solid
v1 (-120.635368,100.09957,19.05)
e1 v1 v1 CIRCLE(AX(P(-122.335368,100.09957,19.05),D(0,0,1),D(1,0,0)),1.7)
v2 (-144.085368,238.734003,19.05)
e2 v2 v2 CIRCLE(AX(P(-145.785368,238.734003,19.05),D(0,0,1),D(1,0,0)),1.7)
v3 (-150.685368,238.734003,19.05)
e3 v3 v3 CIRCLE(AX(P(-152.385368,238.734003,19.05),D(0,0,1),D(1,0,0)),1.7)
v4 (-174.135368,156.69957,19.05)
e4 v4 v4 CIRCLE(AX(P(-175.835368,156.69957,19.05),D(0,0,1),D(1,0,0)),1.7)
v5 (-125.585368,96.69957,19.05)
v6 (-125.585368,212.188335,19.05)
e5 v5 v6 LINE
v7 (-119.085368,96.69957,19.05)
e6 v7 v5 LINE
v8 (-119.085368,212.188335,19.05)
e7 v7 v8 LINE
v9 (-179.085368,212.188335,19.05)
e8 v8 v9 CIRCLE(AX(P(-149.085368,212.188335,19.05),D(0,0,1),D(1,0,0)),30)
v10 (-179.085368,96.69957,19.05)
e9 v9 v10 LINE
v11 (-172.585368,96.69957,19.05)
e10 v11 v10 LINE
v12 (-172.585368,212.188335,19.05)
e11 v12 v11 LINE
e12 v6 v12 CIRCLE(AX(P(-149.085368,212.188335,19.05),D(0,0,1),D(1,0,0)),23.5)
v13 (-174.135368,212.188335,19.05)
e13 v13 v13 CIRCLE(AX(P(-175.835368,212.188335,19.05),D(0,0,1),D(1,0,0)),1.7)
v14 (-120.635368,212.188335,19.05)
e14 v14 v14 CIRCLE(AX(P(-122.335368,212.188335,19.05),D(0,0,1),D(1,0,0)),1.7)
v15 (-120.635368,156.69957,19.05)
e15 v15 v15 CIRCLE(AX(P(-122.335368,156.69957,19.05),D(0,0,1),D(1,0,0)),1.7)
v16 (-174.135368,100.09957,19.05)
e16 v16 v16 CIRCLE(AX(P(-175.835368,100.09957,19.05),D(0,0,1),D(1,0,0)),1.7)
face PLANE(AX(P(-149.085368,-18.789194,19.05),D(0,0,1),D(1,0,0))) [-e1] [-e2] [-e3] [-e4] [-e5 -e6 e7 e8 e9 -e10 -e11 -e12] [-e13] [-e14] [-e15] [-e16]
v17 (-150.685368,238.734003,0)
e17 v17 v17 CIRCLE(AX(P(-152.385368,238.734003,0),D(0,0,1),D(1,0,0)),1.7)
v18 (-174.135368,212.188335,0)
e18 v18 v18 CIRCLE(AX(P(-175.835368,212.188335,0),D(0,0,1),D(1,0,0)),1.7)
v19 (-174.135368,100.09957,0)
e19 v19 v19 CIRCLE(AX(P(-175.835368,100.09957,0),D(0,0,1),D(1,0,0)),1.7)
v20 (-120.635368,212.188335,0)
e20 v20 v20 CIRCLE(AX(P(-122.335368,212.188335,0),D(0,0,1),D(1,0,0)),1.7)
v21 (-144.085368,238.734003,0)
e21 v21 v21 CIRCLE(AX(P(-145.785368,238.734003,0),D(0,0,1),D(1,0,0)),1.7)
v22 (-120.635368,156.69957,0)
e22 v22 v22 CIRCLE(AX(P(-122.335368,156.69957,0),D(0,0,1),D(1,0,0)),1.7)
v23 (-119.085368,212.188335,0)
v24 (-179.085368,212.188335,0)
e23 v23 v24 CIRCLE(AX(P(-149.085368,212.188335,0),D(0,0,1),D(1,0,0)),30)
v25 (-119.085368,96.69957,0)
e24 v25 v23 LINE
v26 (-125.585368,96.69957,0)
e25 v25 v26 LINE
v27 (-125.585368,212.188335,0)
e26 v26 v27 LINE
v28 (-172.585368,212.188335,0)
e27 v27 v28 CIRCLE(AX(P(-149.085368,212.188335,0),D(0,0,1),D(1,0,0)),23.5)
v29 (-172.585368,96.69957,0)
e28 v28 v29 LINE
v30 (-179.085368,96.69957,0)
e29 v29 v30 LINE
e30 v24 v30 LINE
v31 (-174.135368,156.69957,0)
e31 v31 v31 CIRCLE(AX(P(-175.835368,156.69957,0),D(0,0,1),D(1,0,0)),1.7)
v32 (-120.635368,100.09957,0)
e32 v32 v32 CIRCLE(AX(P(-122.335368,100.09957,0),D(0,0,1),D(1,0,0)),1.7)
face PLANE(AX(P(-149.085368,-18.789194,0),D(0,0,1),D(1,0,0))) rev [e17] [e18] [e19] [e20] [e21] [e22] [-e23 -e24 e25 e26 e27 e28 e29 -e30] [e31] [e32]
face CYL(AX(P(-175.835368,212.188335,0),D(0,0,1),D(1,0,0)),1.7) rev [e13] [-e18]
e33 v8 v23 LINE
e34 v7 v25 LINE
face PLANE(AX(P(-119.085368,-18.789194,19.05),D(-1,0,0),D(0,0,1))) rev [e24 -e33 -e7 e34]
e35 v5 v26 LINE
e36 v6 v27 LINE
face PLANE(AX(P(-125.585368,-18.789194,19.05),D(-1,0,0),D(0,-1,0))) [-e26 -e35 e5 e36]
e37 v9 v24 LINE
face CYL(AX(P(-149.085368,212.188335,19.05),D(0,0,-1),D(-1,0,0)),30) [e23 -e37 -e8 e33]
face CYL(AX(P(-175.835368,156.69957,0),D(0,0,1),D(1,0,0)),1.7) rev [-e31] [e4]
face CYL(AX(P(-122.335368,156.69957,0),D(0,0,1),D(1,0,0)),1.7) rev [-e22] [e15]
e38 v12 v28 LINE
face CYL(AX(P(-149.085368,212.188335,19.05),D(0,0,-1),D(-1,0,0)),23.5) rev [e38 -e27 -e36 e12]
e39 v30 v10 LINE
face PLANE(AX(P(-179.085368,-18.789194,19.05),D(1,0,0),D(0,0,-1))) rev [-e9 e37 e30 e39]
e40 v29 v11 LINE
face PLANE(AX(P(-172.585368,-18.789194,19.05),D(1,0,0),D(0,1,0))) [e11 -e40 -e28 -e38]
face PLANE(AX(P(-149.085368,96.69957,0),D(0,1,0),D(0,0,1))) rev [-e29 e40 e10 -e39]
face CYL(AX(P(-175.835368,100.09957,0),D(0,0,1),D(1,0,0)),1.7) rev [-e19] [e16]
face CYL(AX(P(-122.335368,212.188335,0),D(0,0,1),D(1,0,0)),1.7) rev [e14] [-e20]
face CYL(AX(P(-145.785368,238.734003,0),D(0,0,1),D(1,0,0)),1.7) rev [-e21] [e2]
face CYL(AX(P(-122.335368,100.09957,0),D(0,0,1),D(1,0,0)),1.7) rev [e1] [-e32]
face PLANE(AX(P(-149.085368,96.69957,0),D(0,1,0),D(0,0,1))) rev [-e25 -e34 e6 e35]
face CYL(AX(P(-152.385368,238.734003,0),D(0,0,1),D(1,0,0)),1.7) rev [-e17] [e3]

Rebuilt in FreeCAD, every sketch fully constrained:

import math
import FreeCAD as App
import Part
import Sketcher
from FreeCAD import Vector

doc = App.newDocument("Part")
params = doc.addObject("Spreadsheet::Sheet", "Params")
for row, (alias, value) in enumerate([
    ("sketch1_radius", "30 mm"),
    ("sketch1_radius2", "23.5 mm"),
    ("pad1_length", "19.05 mm"),
    ("sketch2_diameter", "3.4 mm"),
], start=1):
    params.set(f"A{row}", alias)
    params.set(f"B{row}", "=" + value)
    params.setAlias(f"B{row}", alias)

body = doc.addObject("PartDesign::Body", "Body")

# Sketch on XY plane
sketch1 = body.newObject("Sketcher::SketchObject", "Sketch")
sketch1.AttachmentSupport = (doc.getObject("XY_Plane"), [""])
sketch1.MapMode = "FlatFace"
sketch1.addGeometry(Part.LineSegment(Vector(-179, 212, 0), Vector(-179, -19, 0)), False)
sketch1.addGeometry(Part.ArcOfCircle(Part.Circle(Vector(-149, -19, 0), Vector(0, 0, 1), 30), math.radians(180), math.radians(360)), False)
sketch1.addGeometry(Part.LineSegment(Vector(-119, -19, 0), Vector(-119, 212, 0)), False)
sketch1.addGeometry(Part.ArcOfCircle(Part.Circle(Vector(-149, 212, 0), Vector(0, 0, 1), 30), math.radians(0), math.radians(180)), False)
sketch1.addGeometry(Part.LineSegment(Vector(-173, -19, 0), Vector(-173, 212, 0)), False)
sketch1.addGeometry(Part.ArcOfCircle(Part.Circle(Vector(-149, 212, 0), Vector(0, 0, 1), 24), math.radians(0), math.radians(180)), False)
sketch1.addGeometry(Part.LineSegment(Vector(-126, 212, 0), Vector(-126, -19, 0)), False)
sketch1.addGeometry(Part.ArcOfCircle(Part.Circle(Vector(-149, -19, 0), Vector(0, 0, 1), 24), math.radians(180), math.radians(360)), False)
sketch1.addConstraint(Sketcher.Constraint("Tangent", 0, 2, 1, 1))
sketch1.addConstraint(Sketcher.Constraint("Tangent", 1, 2, 2, 1))
sketch1.addConstraint(Sketcher.Constraint("Tangent", 2, 2, 3, 1))
sketch1.addConstraint(Sketcher.Constraint("Tangent", 3, 2, 0, 1))
sketch1.addConstraint(Sketcher.Constraint("Tangent", 4, 2, 5, 2))
sketch1.addConstraint(Sketcher.Constraint("Tangent", 5, 1, 6, 1))
sketch1.addConstraint(Sketcher.Constraint("Tangent", 6, 2, 7, 2))
sketch1.addConstraint(Sketcher.Constraint("Tangent", 7, 1, 4, 1))
sketch1.addConstraint(Sketcher.Constraint("Vertical", 0))
sketch1.addConstraint(Sketcher.Constraint("Vertical", 2))
sketch1.addConstraint(Sketcher.Constraint("Vertical", 4))
sketch1.addConstraint(Sketcher.Constraint("Vertical", 6))
sketch1.addConstraint(Sketcher.Constraint("Coincident", 5, 3, 3, 3))
sketch1.addConstraint(Sketcher.Constraint("Horizontal", 7, 3, 0, 2))
sketch1.addConstraint(Sketcher.Constraint("Radius", 1, 30.0))
sketch1.addConstraint(Sketcher.Constraint("Radius", 5, 23.5))
sketch1.addConstraint(Sketcher.Constraint("DistanceY", 0, 2, 0, 1, 230.977529))
sketch1.addConstraint(Sketcher.Constraint("DistanceX", 1, 3, -1, 1, 149.085368))
sketch1.addConstraint(Sketcher.Constraint("DistanceY", 1, 3, -1, 1, 18.789194))
sketch1.setExpression("Constraints[14]", "Params.sketch1_radius")
sketch1.setExpression("Constraints[15]", "Params.sketch1_radius2")
pad1 = body.newObject("PartDesign::Pad", "Pad")
pad1.Profile = sketch1
pad1.setExpression("Length", "Params.pad1_length")

# Sketch on XY plane
sketch2 = body.newObject("Sketcher::SketchObject", "Sketch001")
sketch2.AttachmentSupport = (doc.getObject("XY_Plane"), [""])
sketch2.MapMode = "FlatFace"
sketch2.AttachmentOffset = App.Placement(Vector(0, 0, 19.05), App.Rotation())
sketch2.addGeometry(Part.Circle(Vector(-145.785368, 238.734003, 0), Vector(0, 0, 1), 1.7), False)
sketch2.addGeometry(Part.Circle(Vector(-122.335368, 212.188335, 0), Vector(0, 0, 1), 1.7), False)
sketch2.addGeometry(Part.Circle(Vector(-152.485368, -45.32224, 0), Vector(0, 0, 1), 1.7), False)
sketch2.addGeometry(Part.Circle(Vector(-168.000475, -37.704301, 0), Vector(0, 0, 1), 1.7), False)
sketch2.addGeometry(Part.Circle(Vector(-175.835368, -18.789194, 0), Vector(0, 0, 1), 1.7), False)
sketch2.addGeometry(Part.Circle(Vector(-175.835368, 212.188335, 0), Vector(0, 0, 1), 1.7), False)
sketch2.addGeometry(Part.Circle(Vector(-145.685368, -45.32224, 0), Vector(0, 0, 1), 1.7), False)
sketch2.addGeometry(Part.Circle(Vector(-175.835368, 100.09957, 0), Vector(0, 0, 1), 1.7), False)
sketch2.addGeometry(Part.Circle(Vector(-175.835368, 93.29957, 0), Vector(0, 0, 1), 1.7), False)
sketch2.addGeometry(Part.Circle(Vector(-122.335368, 100.09957, 0), Vector(0, 0, 1), 1.7), False)
sketch2.addGeometry(Part.Circle(Vector(-122.335368, 93.29957, 0), Vector(0, 0, 1), 1.7), False)
sketch2.addGeometry(Part.Circle(Vector(-122.335368, -18.789194, 0), Vector(0, 0, 1), 1.7), False)
sketch2.addGeometry(Part.Circle(Vector(-130.170262, -37.704301, 0), Vector(0, 0, 1), 1.7), False)
sketch2.addGeometry(Part.Circle(Vector(-175.835368, 156.69957, 0), Vector(0, 0, 1), 1.7), False)
sketch2.addGeometry(Part.Circle(Vector(-122.335368, 156.69957, 0), Vector(0, 0, 1), 1.7), False)
sketch2.addGeometry(Part.Circle(Vector(-175.835368, 66.69957, 0), Vector(0, 0, 1), 1.7), False)
sketch2.addGeometry(Part.Circle(Vector(-122.335368, 66.69957, 0), Vector(0, 0, 1), 1.7), False)
sketch2.addGeometry(Part.Circle(Vector(-175.835368, 36.69957, 0), Vector(0, 0, 1), 1.7), False)
sketch2.addGeometry(Part.Circle(Vector(-122.335368, 36.69957, 0), Vector(0, 0, 1), 1.7), False)
sketch2.addGeometry(Part.Circle(Vector(-175.835368, 6.69957, 0), Vector(0, 0, 1), 1.7), False)
sketch2.addGeometry(Part.Circle(Vector(-122.335368, 6.69957, 0), Vector(0, 0, 1), 1.7), False)
sketch2.addGeometry(Part.Circle(Vector(-152.385368, 238.734003, 0), Vector(0, 0, 1), 1.7), False)
sketch2.addConstraint(Sketcher.Constraint("Equal", 0, 1))
sketch2.addConstraint(Sketcher.Constraint("Equal", 1, 2))
sketch2.addConstraint(Sketcher.Constraint("Equal", 2, 3))
sketch2.addConstraint(Sketcher.Constraint("Equal", 3, 4))
sketch2.addConstraint(Sketcher.Constraint("Equal", 4, 5))
sketch2.addConstraint(Sketcher.Constraint("Equal", 5, 6))
sketch2.addConstraint(Sketcher.Constraint("Equal", 6, 7))
sketch2.addConstraint(Sketcher.Constraint("Equal", 7, 8))
sketch2.addConstraint(Sketcher.Constraint("Equal", 8, 9))
sketch2.addConstraint(Sketcher.Constraint("Equal", 9, 10))
sketch2.addConstraint(Sketcher.Constraint("Equal", 10, 11))
sketch2.addConstraint(Sketcher.Constraint("Equal", 11, 12))
sketch2.addConstraint(Sketcher.Constraint("Equal", 12, 13))
sketch2.addConstraint(Sketcher.Constraint("Equal", 13, 14))
sketch2.addConstraint(Sketcher.Constraint("Equal", 14, 15))
sketch2.addConstraint(Sketcher.Constraint("Equal", 15, 16))
sketch2.addConstraint(Sketcher.Constraint("Equal", 16, 17))
sketch2.addConstraint(Sketcher.Constraint("Equal", 17, 18))
sketch2.addConstraint(Sketcher.Constraint("Equal", 18, 19))
sketch2.addConstraint(Sketcher.Constraint("Equal", 19, 20))
sketch2.addConstraint(Sketcher.Constraint("Equal", 20, 21))
sketch2.addConstraint(Sketcher.Constraint("Horizontal", 1, 3, 5, 3))
sketch2.addConstraint(Sketcher.Constraint("Horizontal", 2, 3, 6, 3))
sketch2.addConstraint(Sketcher.Constraint("Horizontal", 7, 3, 9, 3))
sketch2.addConstraint(Sketcher.Constraint("Horizontal", 8, 3, 10, 3))
sketch2.addConstraint(Sketcher.Constraint("Horizontal", 4, 3, 11, 3))
sketch2.addConstraint(Sketcher.Constraint("Horizontal", 3, 3, 12, 3))
sketch2.addConstraint(Sketcher.Constraint("Horizontal", 13, 3, 14, 3))
sketch2.addConstraint(Sketcher.Constraint("Horizontal", 15, 3, 16, 3))
sketch2.addConstraint(Sketcher.Constraint("Horizontal", 17, 3, 18, 3))
sketch2.addConstraint(Sketcher.Constraint("Horizontal", 19, 3, 20, 3))
sketch2.addConstraint(Sketcher.Constraint("Horizontal", 0, 3, 21, 3))
sketch2.addConstraint(Sketcher.Constraint("Vertical", 4, 3, 5, 3))
sketch2.addConstraint(Sketcher.Constraint("Vertical", 5, 3, 7, 3))
sketch2.addConstraint(Sketcher.Constraint("Vertical", 7, 3, 8, 3))
sketch2.addConstraint(Sketcher.Constraint("Vertical", 1, 3, 9, 3))
sketch2.addConstraint(Sketcher.Constraint("Vertical", 9, 3, 10, 3))
sketch2.addConstraint(Sketcher.Constraint("Vertical", 10, 3, 11, 3))
sketch2.addConstraint(Sketcher.Constraint("Vertical", 8, 3, 13, 3))
sketch2.addConstraint(Sketcher.Constraint("Vertical", 11, 3, 14, 3))
sketch2.addConstraint(Sketcher.Constraint("Vertical", 13, 3, 15, 3))
sketch2.addConstraint(Sketcher.Constraint("Vertical", 14, 3, 16, 3))
sketch2.addConstraint(Sketcher.Constraint("Vertical", 15, 3, 17, 3))
sketch2.addConstraint(Sketcher.Constraint("Vertical", 16, 3, 18, 3))
sketch2.addConstraint(Sketcher.Constraint("Vertical", 17, 3, 19, 3))
sketch2.addConstraint(Sketcher.Constraint("Vertical", 18, 3, 20, 3))
sketch2.addConstraint(Sketcher.Constraint("Diameter", 0, 3.4))
sketch2.addConstraint(Sketcher.Constraint("DistanceY", 17, 3, 15, 3, 30.0))
sketch2.addConstraint(Sketcher.Constraint("DistanceY", 19, 3, 17, 3, 30.0))
sketch2.addConstraint(Sketcher.Constraint("DistanceX", 2, 3, 0, 3, 6.7))
sketch2.addConstraint(Sketcher.Constraint("DistanceX", 4, 3, 1, 3, 53.5))
sketch2.addConstraint(Sketcher.Constraint("DistanceX", 2, 3, 6, 3, 6.8))
sketch2.addConstraint(Sketcher.Constraint("DistanceY", 8, 3, 7, 3, 6.8))
sketch2.addConstraint(Sketcher.Constraint("DistanceY", 7, 3, 13, 3, 56.6))
sketch2.addConstraint(Sketcher.Constraint("DistanceY", 15, 3, 8, 3, 26.6))
sketch2.addConstraint(Sketcher.Constraint("DistanceX", 21, 3, 0, 3, 6.6))
sketch2.addConstraint(Sketcher.Constraint("DistanceX", 0, 3, 1, 3, 23.45))
sketch2.addConstraint(Sketcher.Constraint("DistanceY", 3, 3, -1, 1, 37.704301))
sketch2.addConstraint(Sketcher.Constraint("DistanceX", 0, 3, -1, 1, 145.785368))
sketch2.addConstraint(Sketcher.Constraint("DistanceY", 2, 3, -1, 1, 45.32224))
sketch2.addConstraint(Sketcher.Constraint("DistanceY", -1, 1, 7, 3, 100.09957))
sketch2.addConstraint(Sketcher.Constraint("DistanceX", 12, 3, -1, 1, 130.170262))
sketch2.addConstraint(Sketcher.Constraint("DistanceY", 1, 3, 0, 3, 26.545668))
sketch2.addConstraint(Sketcher.Constraint("DistanceY", 4, 3, 1, 3, 230.977529))
sketch2.addConstraint(Sketcher.Constraint("DistanceY", -1, 1, 0, 3, 238.734003))
sketch2.addConstraint(Sketcher.Constraint("DistanceX", 3, 3, -1, 1, 168.000475))
sketch2.setExpression("Constraints[46]", "Params.sketch2_diameter")
pocket1 = body.newObject("PartDesign::Pocket", "Pocket")
pocket1.Profile = sketch2
pocket1.Type = "ThroughAll"

# Sketch on XY plane
sketch3 = body.newObject("Sketcher::SketchObject", "Sketch002")
sketch3.AttachmentSupport = (doc.getObject("XY_Plane"), [""])
sketch3.MapMode = "FlatFace"
sketch3.AttachmentOffset = App.Placement(Vector(0, 0, 19.05), App.Rotation())
sketch3.addGeometry(Part.LineSegment(Vector(-100, 97, 0), Vector(-213, 97, 0)), False)
sketch3.addGeometry(Part.LineSegment(Vector(-213, 97, 0), Vector(-213, -59, 0)), False)
sketch3.addGeometry(Part.LineSegment(Vector(-213, -59, 0), Vector(-100, -59, 0)), False)
sketch3.addGeometry(Part.LineSegment(Vector(-100, -59, 0), Vector(-100, 97, 0)), False)
sketch3.addConstraint(Sketcher.Constraint("Coincident", 0, 2, 1, 1))
sketch3.addConstraint(Sketcher.Constraint("Coincident", 1, 2, 2, 1))
sketch3.addConstraint(Sketcher.Constraint("Coincident", 2, 2, 3, 1))
sketch3.addConstraint(Sketcher.Constraint("Coincident", 3, 2, 0, 1))
sketch3.addConstraint(Sketcher.Constraint("Horizontal", 0))
sketch3.addConstraint(Sketcher.Constraint("Vertical", 1))
sketch3.addConstraint(Sketcher.Constraint("Horizontal", 2))
sketch3.addConstraint(Sketcher.Constraint("Vertical", 3))
sketch3.addConstraint(Sketcher.Constraint("DistanceX", 0, 2, 0, 1, 112.360478))
sketch3.addConstraint(Sketcher.Constraint("DistanceY", 1, 2, 1, 1, 155.871458))
sketch3.addConstraint(Sketcher.Constraint("DistanceY", -1, 1, 0, 2, 96.69957))
sketch3.addConstraint(Sketcher.Constraint("DistanceX", 0, 2, -1, 1, 212.527815))
pocket2 = body.newObject("PartDesign::Pocket", "Pocket001")
pocket2.Profile = sketch3
pocket2.Type = "ThroughAll"

doc.recompute()
